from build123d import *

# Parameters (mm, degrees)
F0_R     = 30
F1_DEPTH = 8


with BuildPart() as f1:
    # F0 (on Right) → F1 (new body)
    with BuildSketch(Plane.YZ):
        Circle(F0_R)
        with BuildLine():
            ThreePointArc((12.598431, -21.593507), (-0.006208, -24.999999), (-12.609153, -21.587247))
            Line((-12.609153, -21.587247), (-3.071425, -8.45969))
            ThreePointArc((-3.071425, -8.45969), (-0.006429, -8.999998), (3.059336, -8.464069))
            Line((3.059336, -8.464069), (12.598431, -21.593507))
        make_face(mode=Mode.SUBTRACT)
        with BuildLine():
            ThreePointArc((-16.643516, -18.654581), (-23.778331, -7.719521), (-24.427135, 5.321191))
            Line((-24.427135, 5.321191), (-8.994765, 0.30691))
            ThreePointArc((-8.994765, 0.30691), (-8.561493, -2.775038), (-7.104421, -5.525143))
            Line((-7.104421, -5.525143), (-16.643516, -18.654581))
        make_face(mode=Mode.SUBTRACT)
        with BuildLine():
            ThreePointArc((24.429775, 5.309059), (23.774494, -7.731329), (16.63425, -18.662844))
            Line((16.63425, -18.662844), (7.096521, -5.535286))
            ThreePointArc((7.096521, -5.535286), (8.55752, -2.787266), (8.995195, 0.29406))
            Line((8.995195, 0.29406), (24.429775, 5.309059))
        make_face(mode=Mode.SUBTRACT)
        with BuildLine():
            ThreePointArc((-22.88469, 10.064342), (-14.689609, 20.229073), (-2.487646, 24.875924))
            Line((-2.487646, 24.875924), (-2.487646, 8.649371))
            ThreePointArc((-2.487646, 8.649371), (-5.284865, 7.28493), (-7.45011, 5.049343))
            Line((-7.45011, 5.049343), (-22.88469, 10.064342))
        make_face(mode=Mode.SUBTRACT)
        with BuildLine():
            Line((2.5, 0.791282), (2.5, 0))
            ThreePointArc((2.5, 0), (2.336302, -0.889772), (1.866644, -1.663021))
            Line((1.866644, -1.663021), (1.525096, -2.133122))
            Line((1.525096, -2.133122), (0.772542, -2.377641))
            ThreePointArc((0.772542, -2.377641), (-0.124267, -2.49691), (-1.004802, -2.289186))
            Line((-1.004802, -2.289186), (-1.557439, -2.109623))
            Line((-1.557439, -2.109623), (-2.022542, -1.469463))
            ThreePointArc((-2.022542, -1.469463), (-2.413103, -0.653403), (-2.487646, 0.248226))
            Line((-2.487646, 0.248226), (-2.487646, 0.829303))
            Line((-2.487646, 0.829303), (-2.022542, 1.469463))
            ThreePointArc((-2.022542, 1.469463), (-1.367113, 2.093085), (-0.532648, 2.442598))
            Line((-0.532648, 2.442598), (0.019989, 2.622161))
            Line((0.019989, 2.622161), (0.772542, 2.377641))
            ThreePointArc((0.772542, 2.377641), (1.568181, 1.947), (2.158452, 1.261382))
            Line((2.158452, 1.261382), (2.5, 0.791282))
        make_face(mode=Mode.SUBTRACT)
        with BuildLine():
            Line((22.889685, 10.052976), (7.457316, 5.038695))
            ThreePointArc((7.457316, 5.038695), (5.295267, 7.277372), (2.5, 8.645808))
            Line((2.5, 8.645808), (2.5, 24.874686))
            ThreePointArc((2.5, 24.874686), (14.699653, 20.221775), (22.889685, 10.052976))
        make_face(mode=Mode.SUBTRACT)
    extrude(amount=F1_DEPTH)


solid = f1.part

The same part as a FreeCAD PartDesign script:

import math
import FreeCAD as App
import Part
import Sketcher

V = App.Vector

doc = App.newDocument("Part")
body = doc.addObject("PartDesign::Body", "Body")

# Sketch on YZ plane
sketch1 = doc.addObject("Sketcher::SketchObject", "Sketch")
body.addObject(sketch1)
sketch1.AttachmentSupport = (doc.YZ_Plane, [""])
sketch1.MapMode = "FlatFace"
sketch1.addGeometry([
    Part.Circle(V(0, 0, 0), V(0, 0, 1), 30),  # 0
    Part.LineSegment(V(3.059336, -8.464069, 0), V(12.598431, -21.593507, 0)),  # 1
    Part.ArcOfCircle(Part.Circle(V(0.000001, 0, 0), V(0, 0, 1), 25), math.radians(-120.289285), math.radians(-59.739173)),  # 2
    Part.LineSegment(V(-12.609153, -21.587247, 0), V(-3.071425, -8.45969, 0)),  # 3
    Part.ArcOfCircle(Part.Circle(V(0, -0.000002, 0), V(0, 0, 1), 8.999999), math.radians(-109.954234), math.radians(-70.127615)),  # 4
    Part.LineSegment(V(-7.104421, -5.525143, 0), V(-16.643516, -18.654581, 0)),  # 5
    Part.ArcOfCircle(Part.Circle(V(-0.000003, -0.000001, 0), V(0, 0, 1), 24.999997), math.radians(167.710712), math.radians(228.260833)),  # 6
    Part.LineSegment(V(-24.427135, 5.321191, 0), V(-8.994765, 0.30691, 0)),  # 7
    Part.ArcOfCircle(Part.Circle(V(-0.000001, -0.000001, 0), V(0, 0, 1), 8.999999), math.radians(178.045763), math.radians(217.872379)),  # 8
    Part.LineSegment(V(8.995195, 0.29406, 0), V(24.429775, 5.309059, 0)),  # 9
    Part.ArcOfCircle(Part.Circle(V(-0.000001, 0, 0), V(0, 0, 1), 25.000001), math.radians(-48.289283), math.radians(12.260828)),  # 10
    Part.LineSegment(V(16.63425, -18.662844, 0), V(7.096521, -5.535286, 0)),  # 11
    Part.ArcOfCircle(Part.Circle(V(-0.000002, 0.000001, 0), V(0, 0, 1), 9.000002), math.radians(-37.954225), math.radians(1.872371)),  # 12
    Part.LineSegment(V(-7.45011, 5.049343, 0), V(-22.88469, 10.064342, 0)),  # 13
    Part.ArcOfCircle(Part.Circle(V(-0.000001, 0.000001, 0), V(0, 0, 1), 24.999999), math.radians(95.710712), math.radians(156.26083)),  # 14
    Part.LineSegment(V(-2.487646, 24.875924, 0), V(-2.487646, 8.649371, 0)),  # 15
    Part.ArcOfCircle(Part.Circle(V(-0.000001, 0, 0), V(0, 0, 1), 9), math.radians(106.045765), math.radians(145.872381)),  # 16
    Part.LineSegment(V(2.158452, 1.261382, 0), V(2.5, 0.791282, 0)),  # 17
    Part.LineSegment(V(2.5, 0.791282, 0), V(2.5, 0, 0)),  # 18
    Part.ArcOfCircle(Part.Circle(V(0.000006, -0.000002, 0), V(0, 0, 1), 2.499994), math.radians(-41.698376), math.radians(0.00004)),  # 19
    Part.LineSegment(V(1.866644, -1.663021, 0), V(1.525096, -2.133122, 0)),  # 20
    Part.LineSegment(V(1.525096, -2.133122, 0), V(0.772542, -2.377641, 0)),  # 21
    Part.ArcOfCircle(Part.Circle(V(-0.000001, -0.000009, 0), V(0, 0, 1), 2.499991), math.radians(-113.69838), math.radians(-71.999921)),  # 22
    Part.LineSegment(V(-1.004802, -2.289186, 0), V(-1.557439, -2.109623, 0)),  # 23
    Part.LineSegment(V(-1.557439, -2.109623, 0), V(-2.022542, -1.469463, 0)),  # 24
    Part.ArcOfCircle(Part.Circle(V(-0.00001, -0.000002, 0), V(0, 0, 1), 2.49999), math.radians(174.301612), math.radians(216.000095)),  # 25
    Part.LineSegment(V(-2.487646, 0.248226, 0), V(-2.487646, 0.829303, 0)),  # 26
    Part.LineSegment(V(-2.487646, 0.829303, 0), V(-2.022542, 1.469463, 0)),  # 27
    Part.ArcOfCircle(Part.Circle(V(-0.000007, 0.000012, 0), V(0, 0, 1), 2.499987), math.radians(102.301586), math.radians(144.000116)),  # 28
    Part.LineSegment(V(-0.532648, 2.442598, 0), V(0.019989, 2.622161, 0)),  # 29
    Part.LineSegment(V(0.019989, 2.622161, 0), V(0.772542, 2.377641, 0)),  # 30
    Part.ArcOfCircle(Part.Circle(V(0.000004, 0.000004, 0), V(0, 0, 1), 2.499994), math.radians(30.301634), math.radians(72.000067)),  # 31
    Part.ArcOfCircle(Part.Circle(V(-0.000002, -0.000003, 0), V(0, 0, 1), 25.000003), math.radians(23.710721), math.radians(84.260826)),  # 32
    Part.LineSegment(V(22.889685, 10.052976, 0), V(7.457316, 5.038695, 0)),  # 33
    Part.ArcOfCircle(Part.Circle(V(-0.000003, -0.000006, 0), V(0, 0, 1), 9.000006), math.radians(34.045789), math.radians(73.872372)),  # 34
    Part.LineSegment(V(2.5, 8.645808, 0), V(2.5, 24.874686, 0)),  # 35
], False)
sketch1.addConstraint([
    Sketcher.Constraint("Coincident", 1, 2, 2, 2),
    Sketcher.Constraint("Coincident", 2, 1, 3, 1),
    Sketcher.Constraint("Coincident", 3, 2, 4, 1),
    Sketcher.Constraint("Coincident", 4, 2, 1, 1),
    Sketcher.Constraint("Coincident", 5, 2, 6, 2),
    Sketcher.Constraint("Coincident", 6, 1, 7, 1),
    Sketcher.Constraint("Coincident", 7, 2, 8, 1),
    Sketcher.Constraint("Coincident", 8, 2, 5, 1),
    Sketcher.Constraint("Coincident", 9, 2, 10, 2),
    Sketcher.Constraint("Coincident", 10, 1, 11, 1),
    Sketcher.Constraint("Coincident", 11, 2, 12, 1),
    Sketcher.Constraint("Coincident", 12, 2, 9, 1),
    Sketcher.Constraint("Coincident", 13, 2, 14, 2),
    Sketcher.Constraint("Coincident", 14, 1, 15, 1),
    Sketcher.Constraint("Coincident", 15, 2, 16, 1),
    Sketcher.Constraint("Coincident", 16, 2, 13, 1),
    Sketcher.Constraint("Coincident", 17, 2, 18, 1),
    Sketcher.Constraint("Coincident", 18, 2, 19, 2),
    Sketcher.Constraint("Coincident", 19, 1, 20, 1),
    Sketcher.Constraint("Coincident", 20, 2, 21, 1),
    Sketcher.Constraint("Coincident", 21, 2, 22, 2),
    Sketcher.Constraint("Coincident", 22, 1, 23, 1),
    Sketcher.Constraint("Coincident", 23, 2, 24, 1),
    Sketcher.Constraint("Coincident", 24, 2, 25, 2),
    Sketcher.Constraint("Coincident", 25, 1, 26, 1),
    Sketcher.Constraint("Coincident", 26, 2, 27, 1),
    Sketcher.Constraint("Coincident", 27, 2, 28, 2),
    Sketcher.Constraint("Coincident", 28, 1, 29, 1),
    Sketcher.Constraint("Coincident", 29, 2, 30, 1),
    Sketcher.Constraint("Coincident", 30, 2, 31, 2),
    Sketcher.Constraint("Coincident", 31, 1, 17, 1),
    Sketcher.Constraint("Coincident", 32, 1, 33, 1),
    Sketcher.Constraint("Coincident", 33, 2, 34, 1),
    Sketcher.Constraint("Coincident", 34, 2, 35, 1),
    Sketcher.Constraint("Coincident", 35, 2, 32, 2),
    Sketcher.Constraint("Vertical", 15),
    Sketcher.Constraint("Vertical", 18),
    Sketcher.Constraint("Vertical", 26),
    Sketcher.Constraint("Vertical", 35),
    Sketcher.Constraint("Coincident", 0, 3, -1, 1),
    Sketcher.Constraint("Coincident", 2, 3, -1, 1),
    Sketcher.Constraint("Coincident", 4, 3, -1, 1),
    Sketcher.Constraint("Coincident", 6, 3, -1, 1),
    Sketcher.Constraint("Coincident", 8, 3, -1, 1),
    Sketcher.Constraint("Coincident", 10, 3, -1, 1),
    Sketcher.Constraint("Coincident", 12, 3, -1, 1),
    Sketcher.Constraint("Coincident", 14, 3, -1, 1),
    Sketcher.Constraint("Coincident", 16, 3, -1, 1),
    Sketcher.Constraint("Coincident", 19, 3, -1, 1),
    Sketcher.Constraint("Coincident", 22, 3, -1, 1),
    Sketcher.Constraint("Coincident", 31, 3, -1, 1),
    Sketcher.Constraint("Coincident", 32, 3, -1, 1),
    Sketcher.Constraint("Coincident", 34, 3, -1, 1),
    Sketcher.Constraint("Coincident", 25, 3, 4, 3),
    Sketcher.Constraint("PointOnObject", 18, 2, -1),
    Sketcher.Constraint("Diameter", 0, 60.0),
    Sketcher.Constraint("Radius", 2, 25.0),
    Sketcher.Constraint("Radius", 4, 8.999999),
    Sketcher.Constraint("Radius", 8, 8.999999),
    Sketcher.Constraint("Radius", 10, 25.000001),
    Sketcher.Constraint("Radius", 14, 24.999999),
    Sketcher.Constraint("Radius", 16, 9.0),
    Sketcher.Constraint("DistanceX", -1, 1, 17, 2, 2.5),
    Sketcher.Constraint("DistanceX", -1, 1, 34, 2, 2.5),
    Sketcher.Constraint("Radius", 22, 2.499991),
    Sketcher.Constraint("Radius", 25, 2.49999),
    Sketcher.Constraint("Radius", 6, 24.999997),
    Sketcher.Constraint("Radius", 12, 9.000002),
    Sketcher.Constraint("Radius", 28, 2.499987),
    Sketcher.Constraint("Radius", 31, 2.499994),
    Sketcher.Constraint("Radius", 32, 25.000003),
    Sketcher.Constraint("Radius", 34, 9.000006),
    Sketcher.Constraint("DistanceX", 22, 1, -1, 1, 1.004802),
    Sketcher.Constraint("DistanceY", -1, 1, 28, 1, 2.442598),
    Sketcher.Constraint("DistanceY", 1, 2, 34, 3, 21.593501),
    Sketcher.Constraint("DistanceY", 28, 3, 7, 2, 0.306898),
    Sketcher.Constraint("DistanceX", 16, 2, 25, 3, 7.4501),
    Sketcher.Constraint("DistanceY", 20, 2, 19, 1, 0.470101),
    Sketcher.Constraint("DistanceX", 34, 3, 20, 2, 1.525099),
    Sketcher.Constraint("DistanceY", 27, 2, 29, 2, 1.152698),
    Sketcher.Constraint("DistanceY", 17, 2, 31, 1, 0.4701),
    Sketcher.Constraint("Distance", 21, 0.791282),
    Sketcher.Constraint("Distance", 24, 0.791281),
    Sketcher.Constraint("Distance", 27, 0.791282),
    Sketcher.Constraint("Distance", 30, 0.791281),
    Sketcher.Constraint("DistanceY", 15, 2, 15, 1, 16.226553),
    Sketcher.Constraint("DistanceY", 18, 2, 18, 1, 0.791282),
    Sketcher.Constraint("DistanceY", 26, 1, 26, 2, 0.581077),
    Sketcher.Constraint("DistanceY", 3, 2, -1, 1, 8.45969),
    Sketcher.Constraint("DistanceY", 4, 2, -1, 1, 8.464069),
    Sketcher.Constraint("DistanceY", 5, 2, -1, 1, 18.654581),
    Sketcher.Constraint("DistanceY", -1, 1, 6, 1, 5.321191),
    Sketcher.Constraint("DistanceY", -1, 1, 7, 2, 0.30691),
    Sketcher.Constraint("DistanceX", 8, 2, -1, 1, 7.104421),
    Sketcher.Constraint("DistanceY", -1, 1, 9, 2, 5.309059),
    Sketcher.Constraint("DistanceX", -1, 1, 10, 1, 16.63425),
    Sketcher.Constraint("DistanceX", -1, 1, 11, 2, 7.096521),
    Sketcher.Constraint("DistanceY", -1, 1, 12, 2, 0.29406),
    Sketcher.Constraint("DistanceX", 13, 2, -1, 1, 22.88469),
    Sketcher.Constraint("DistanceY", 19, 1, -1, 1, 1.663021),
    Sketcher.Constraint("DistanceX", 23, 2, -1, 1, 1.557439),
    Sketcher.Constraint("DistanceX", 28, 1, -1, 1, 0.532648),
    Sketcher.Constraint("DistanceX", -1, 1, 29, 2, 0.019989),
    Sketcher.Constraint("DistanceY", -1, 1, 29, 2, 2.622161),
    Sketcher.Constraint("DistanceX", 2, 1, 34, 3, 12.60915),
    Sketcher.Constraint("DistanceY", 21, 2, 23, 2, 0.268018),
    Sketcher.Constraint("DistanceX", 32, 1, 9, 2, 1.54009),
    Sketcher.Constraint("DistanceX", 33, 2, 12, 2, 1.537879),
])
pad1 = doc.addObject("PartDesign::Pad", "Pad")
body.addObject(pad1)
pad1.Profile = sketch1
pad1.Length = 8

doc.recompute()
